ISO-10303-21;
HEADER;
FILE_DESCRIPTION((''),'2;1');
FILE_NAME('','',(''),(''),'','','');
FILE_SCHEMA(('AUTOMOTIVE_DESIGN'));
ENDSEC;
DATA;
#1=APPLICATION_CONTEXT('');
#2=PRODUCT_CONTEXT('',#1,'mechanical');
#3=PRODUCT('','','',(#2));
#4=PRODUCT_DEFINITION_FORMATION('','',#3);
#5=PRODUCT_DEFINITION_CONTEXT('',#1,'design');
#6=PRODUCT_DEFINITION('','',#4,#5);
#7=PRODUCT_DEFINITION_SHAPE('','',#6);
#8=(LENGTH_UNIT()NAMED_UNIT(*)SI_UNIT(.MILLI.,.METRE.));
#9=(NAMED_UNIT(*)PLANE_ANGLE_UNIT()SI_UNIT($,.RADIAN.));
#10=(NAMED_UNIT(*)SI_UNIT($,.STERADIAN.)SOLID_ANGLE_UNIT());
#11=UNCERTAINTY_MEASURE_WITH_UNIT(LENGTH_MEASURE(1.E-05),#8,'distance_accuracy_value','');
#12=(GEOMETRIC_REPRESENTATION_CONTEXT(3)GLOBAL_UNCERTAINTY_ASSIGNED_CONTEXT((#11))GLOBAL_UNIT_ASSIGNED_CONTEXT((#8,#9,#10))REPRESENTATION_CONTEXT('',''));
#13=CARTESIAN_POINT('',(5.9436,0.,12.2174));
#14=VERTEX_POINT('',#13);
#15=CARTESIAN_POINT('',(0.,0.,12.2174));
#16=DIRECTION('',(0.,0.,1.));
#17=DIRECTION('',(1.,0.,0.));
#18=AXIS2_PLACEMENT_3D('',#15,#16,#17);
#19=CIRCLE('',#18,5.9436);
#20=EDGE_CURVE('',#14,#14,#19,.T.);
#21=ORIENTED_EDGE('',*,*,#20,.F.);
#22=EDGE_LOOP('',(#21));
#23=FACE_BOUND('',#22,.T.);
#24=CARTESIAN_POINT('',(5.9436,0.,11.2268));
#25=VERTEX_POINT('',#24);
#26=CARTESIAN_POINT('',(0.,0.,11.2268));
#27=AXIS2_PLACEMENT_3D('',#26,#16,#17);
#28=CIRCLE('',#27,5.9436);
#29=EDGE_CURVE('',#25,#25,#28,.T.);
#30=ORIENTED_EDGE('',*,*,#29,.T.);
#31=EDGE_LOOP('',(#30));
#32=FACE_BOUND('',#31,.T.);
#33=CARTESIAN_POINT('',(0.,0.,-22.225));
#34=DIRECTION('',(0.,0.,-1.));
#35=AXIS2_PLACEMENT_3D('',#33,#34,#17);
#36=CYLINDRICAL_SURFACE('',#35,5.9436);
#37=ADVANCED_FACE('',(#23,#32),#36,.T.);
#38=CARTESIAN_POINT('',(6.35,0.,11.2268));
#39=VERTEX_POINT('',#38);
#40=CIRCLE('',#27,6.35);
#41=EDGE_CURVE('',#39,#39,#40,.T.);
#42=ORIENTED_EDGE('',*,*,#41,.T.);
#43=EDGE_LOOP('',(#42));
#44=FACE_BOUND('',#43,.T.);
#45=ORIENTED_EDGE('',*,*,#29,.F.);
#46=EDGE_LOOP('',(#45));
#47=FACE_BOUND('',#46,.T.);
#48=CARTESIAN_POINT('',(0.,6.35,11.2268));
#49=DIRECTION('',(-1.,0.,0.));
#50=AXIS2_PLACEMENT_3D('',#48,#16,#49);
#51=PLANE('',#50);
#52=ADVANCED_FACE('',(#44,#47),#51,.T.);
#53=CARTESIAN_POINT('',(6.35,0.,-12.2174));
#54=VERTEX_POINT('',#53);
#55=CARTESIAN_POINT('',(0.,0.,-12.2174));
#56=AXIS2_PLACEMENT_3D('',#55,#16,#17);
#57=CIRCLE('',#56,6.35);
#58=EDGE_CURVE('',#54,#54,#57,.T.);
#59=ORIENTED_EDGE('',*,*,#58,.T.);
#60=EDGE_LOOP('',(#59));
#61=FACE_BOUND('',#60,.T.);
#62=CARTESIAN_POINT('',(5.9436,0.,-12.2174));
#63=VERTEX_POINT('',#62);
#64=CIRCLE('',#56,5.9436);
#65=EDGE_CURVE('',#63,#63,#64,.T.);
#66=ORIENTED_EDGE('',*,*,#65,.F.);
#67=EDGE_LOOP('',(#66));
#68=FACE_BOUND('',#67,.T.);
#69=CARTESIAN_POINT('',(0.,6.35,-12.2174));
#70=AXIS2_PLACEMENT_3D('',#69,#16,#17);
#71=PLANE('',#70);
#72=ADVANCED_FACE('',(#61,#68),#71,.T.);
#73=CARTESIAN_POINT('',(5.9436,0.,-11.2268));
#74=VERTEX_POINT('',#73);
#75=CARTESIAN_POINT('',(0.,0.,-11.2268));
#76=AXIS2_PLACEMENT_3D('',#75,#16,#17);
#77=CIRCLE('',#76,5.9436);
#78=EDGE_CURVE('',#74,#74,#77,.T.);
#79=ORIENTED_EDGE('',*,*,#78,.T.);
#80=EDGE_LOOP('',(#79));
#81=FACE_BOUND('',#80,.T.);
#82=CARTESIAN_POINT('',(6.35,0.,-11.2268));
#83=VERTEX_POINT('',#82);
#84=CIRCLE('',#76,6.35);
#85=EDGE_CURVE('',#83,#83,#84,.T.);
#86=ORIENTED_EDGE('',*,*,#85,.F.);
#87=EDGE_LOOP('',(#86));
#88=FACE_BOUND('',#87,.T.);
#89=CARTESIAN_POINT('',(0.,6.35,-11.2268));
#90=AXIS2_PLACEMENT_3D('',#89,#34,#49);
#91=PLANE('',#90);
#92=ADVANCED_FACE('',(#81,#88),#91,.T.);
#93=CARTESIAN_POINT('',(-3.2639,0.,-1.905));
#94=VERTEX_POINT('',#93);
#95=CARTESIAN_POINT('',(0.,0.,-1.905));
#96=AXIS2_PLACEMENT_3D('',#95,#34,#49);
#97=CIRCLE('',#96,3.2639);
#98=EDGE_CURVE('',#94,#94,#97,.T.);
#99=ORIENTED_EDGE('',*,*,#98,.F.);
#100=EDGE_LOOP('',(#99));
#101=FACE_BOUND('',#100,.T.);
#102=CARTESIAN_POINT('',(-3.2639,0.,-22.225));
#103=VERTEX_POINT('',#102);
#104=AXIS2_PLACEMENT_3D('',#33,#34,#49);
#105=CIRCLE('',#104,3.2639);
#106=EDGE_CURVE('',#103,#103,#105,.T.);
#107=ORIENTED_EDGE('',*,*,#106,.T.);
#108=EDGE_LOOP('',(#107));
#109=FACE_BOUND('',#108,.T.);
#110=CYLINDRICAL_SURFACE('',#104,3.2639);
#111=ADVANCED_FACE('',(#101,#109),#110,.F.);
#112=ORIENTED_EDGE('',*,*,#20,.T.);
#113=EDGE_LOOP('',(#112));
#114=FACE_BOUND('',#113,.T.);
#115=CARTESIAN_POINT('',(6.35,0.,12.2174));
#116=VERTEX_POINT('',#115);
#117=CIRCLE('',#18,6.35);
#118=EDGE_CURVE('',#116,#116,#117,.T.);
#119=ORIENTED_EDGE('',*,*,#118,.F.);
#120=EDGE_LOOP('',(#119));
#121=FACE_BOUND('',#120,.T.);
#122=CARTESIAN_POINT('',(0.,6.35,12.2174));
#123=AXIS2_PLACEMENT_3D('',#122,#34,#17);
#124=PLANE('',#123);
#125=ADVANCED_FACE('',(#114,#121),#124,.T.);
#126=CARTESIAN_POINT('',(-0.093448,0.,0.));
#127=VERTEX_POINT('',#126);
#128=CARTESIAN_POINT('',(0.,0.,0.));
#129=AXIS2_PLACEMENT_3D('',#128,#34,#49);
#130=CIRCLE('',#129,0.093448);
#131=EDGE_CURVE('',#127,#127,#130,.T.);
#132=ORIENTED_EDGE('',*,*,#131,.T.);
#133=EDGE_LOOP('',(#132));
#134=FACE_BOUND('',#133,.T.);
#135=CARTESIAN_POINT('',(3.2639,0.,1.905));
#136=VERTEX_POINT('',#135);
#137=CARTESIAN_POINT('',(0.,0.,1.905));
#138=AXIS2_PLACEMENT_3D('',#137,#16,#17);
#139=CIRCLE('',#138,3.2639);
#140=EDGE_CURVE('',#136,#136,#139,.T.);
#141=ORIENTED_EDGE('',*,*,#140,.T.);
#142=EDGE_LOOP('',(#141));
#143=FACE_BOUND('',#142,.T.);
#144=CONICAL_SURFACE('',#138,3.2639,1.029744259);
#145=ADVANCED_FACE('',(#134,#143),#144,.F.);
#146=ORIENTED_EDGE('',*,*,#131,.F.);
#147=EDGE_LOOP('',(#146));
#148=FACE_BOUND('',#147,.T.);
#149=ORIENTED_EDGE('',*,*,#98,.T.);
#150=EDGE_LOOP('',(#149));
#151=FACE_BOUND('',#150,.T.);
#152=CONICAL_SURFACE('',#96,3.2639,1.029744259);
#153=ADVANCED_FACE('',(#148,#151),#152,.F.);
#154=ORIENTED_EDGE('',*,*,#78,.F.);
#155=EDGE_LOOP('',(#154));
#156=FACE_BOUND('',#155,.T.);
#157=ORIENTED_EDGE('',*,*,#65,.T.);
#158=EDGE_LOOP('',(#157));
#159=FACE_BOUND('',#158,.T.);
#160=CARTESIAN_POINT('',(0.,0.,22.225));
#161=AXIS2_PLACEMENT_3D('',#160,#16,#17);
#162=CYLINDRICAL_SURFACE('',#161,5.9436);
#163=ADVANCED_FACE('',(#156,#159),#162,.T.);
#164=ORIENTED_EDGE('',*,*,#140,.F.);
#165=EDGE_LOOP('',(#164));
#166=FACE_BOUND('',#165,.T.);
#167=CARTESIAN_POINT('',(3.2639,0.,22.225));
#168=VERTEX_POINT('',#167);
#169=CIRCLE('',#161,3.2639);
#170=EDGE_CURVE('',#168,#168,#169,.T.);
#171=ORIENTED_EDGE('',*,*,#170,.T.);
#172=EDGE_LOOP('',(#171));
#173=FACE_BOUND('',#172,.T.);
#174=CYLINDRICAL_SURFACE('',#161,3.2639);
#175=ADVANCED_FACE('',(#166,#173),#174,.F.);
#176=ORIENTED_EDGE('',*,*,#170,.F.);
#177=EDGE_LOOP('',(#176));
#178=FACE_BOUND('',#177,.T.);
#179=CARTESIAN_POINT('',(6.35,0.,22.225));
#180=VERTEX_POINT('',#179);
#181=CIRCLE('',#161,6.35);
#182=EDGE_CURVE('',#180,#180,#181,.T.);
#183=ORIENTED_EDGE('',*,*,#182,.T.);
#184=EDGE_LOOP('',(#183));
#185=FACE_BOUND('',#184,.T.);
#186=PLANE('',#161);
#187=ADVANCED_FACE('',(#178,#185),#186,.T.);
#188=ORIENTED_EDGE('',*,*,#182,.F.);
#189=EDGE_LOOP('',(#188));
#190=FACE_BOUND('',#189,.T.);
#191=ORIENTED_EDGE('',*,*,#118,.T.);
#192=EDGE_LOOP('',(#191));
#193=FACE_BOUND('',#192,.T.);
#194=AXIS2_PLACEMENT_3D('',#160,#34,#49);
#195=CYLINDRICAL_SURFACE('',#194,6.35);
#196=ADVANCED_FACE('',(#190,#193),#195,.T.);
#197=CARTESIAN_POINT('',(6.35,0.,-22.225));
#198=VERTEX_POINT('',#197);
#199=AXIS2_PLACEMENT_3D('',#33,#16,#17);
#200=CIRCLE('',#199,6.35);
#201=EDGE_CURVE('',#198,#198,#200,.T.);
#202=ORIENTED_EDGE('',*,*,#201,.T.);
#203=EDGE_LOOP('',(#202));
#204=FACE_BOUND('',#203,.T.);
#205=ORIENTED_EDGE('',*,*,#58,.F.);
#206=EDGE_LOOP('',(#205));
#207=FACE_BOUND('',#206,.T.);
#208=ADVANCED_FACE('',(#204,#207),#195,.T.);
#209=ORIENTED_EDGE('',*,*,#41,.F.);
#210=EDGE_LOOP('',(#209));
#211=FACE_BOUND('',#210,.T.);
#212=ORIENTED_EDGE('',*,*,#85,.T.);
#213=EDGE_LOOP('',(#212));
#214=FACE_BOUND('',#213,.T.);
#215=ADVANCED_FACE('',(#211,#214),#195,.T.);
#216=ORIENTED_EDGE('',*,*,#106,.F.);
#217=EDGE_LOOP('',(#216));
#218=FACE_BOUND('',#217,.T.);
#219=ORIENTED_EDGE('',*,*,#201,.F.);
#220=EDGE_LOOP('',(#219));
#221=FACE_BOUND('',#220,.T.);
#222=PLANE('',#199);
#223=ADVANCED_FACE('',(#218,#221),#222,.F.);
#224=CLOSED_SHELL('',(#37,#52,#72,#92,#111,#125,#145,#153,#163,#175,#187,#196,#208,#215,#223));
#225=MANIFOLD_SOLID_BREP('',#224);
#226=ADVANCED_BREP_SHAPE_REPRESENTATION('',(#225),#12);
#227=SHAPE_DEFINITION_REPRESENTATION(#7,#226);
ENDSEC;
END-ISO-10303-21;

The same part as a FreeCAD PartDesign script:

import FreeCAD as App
import Part
import Sketcher
Q = App.Units.Quantity

doc = App.newDocument("Part")
body = doc.addObject("PartDesign::Body", "Body")

sketch1 = body.newObject("Sketcher::SketchObject", "Sketch")
sketch1.AttachmentSupport = (doc.getObject("XY_Plane"), [""])
sketch1.MapMode = "FlatFace"
sketch1.addGeometry(Part.Circle(App.Vector(0, 0, 0), App.Vector(0, 0, 1), 6), False)
sketch1.addConstraint(Sketcher.Constraint("Coincident", 0, 3, -1, 1))
sketch1.addConstraint(Sketcher.Constraint("Diameter", 0, Q("0.5 in")))
pad1 = body.newObject("PartDesign::Pad", "Pad")
pad1.Profile = sketch1
pad1.Length = Q("1.75 in")
pad1.Midplane = True

sketch2 = body.newObject("Sketcher::SketchObject", "Sketch001")
sketch2.AttachmentSupport = (doc.getObject("XY_Plane"), [""])
sketch2.MapMode = "FlatFace"
sketch2.AttachmentOffset = App.Placement(App.Vector(0, 0, 0.875 * 25.4), App.Rotation())
sketch2.addGeometry(Part.Circle(App.Vector(0, 0, 0), App.Vector(0, 0, 1), 3.3), False)
sketch2.addConstraint(Sketcher.Constraint("Coincident", 0, 3, -1, 1))
sketch2.addConstraint(Sketcher.Constraint("Diameter", 0, Q("0.257 in")))
doc.recompute()
hole = body.newObject("PartDesign::Hole", "Hole")
hole.Profile = sketch2
hole.ThreadType = "None"
hole.Diameter = Q("0.257 in")
hole.DepthType = "Dimension"
hole.Depth = Q("0.8 in")
hole.DrillPoint = "Angled"
hole.DrillPointAngle = 118

sketch3 = body.newObject("Sketcher::SketchObject", "Sketch002")
sketch3.AttachmentSupport = (doc.getObject("XY_Plane"), [""])
sketch3.MapMode = "FlatFace"
sketch3.AttachmentOffset = App.Placement(App.Vector(0, 0, -0.875 * 25.4), App.Rotation())
sketch3.addGeometry(Part.Circle(App.Vector(0, 0, 0), App.Vector(0, 0, 1), 3.3), False)
sketch3.addConstraint(Sketcher.Constraint("Coincident", 0, 3, -1, 1))
sketch3.addConstraint(Sketcher.Constraint("Diameter", 0, Q("0.257 in")))
doc.recompute()
hole2 = body.newObject("PartDesign::Hole", "Hole001")
hole2.Profile = sketch3
hole2.ThreadType = "None"
hole2.Diameter = Q("0.257 in")
hole2.DepthType = "Dimension"
hole2.Depth = Q("0.8 in")
hole2.DrillPoint = "Angled"
hole2.DrillPointAngle = 118
hole2.Reversed = True

sketch4 = body.newObject("Sketcher::SketchObject", "Sketch003")
sketch4.AttachmentSupport = (doc.getObject("YZ_Plane"), [""])
sketch4.MapMode = "FlatFace"
sketch4.addGeometry(Part.LineSegment(App.Vector(6.35, -11.23, 0), App.Vector(5.94, -11.23, 0)), False)
sketch4.addGeometry(Part.LineSegment(App.Vector(5.94, -11.23, 0), App.Vector(5.94, -12.22, 0)), False)
sketch4.addGeometry(Part.LineSegment(App.Vector(5.94, -12.22, 0), App.Vector(6.35, -12.22, 0)), False)
sketch4.addGeometry(Part.LineSegment(App.Vector(6.35, -12.22, 0), App.Vector(6.35, -11.23, 0)), False)
sketch4.addConstraint(Sketcher.Constraint("Coincident", 0, 2, 1, 1))
sketch4.addConstraint(Sketcher.Constraint("Coincident", 1, 2, 2, 1))
sketch4.addConstraint(Sketcher.Constraint("Coincident", 2, 2, 3, 1))
sketch4.addConstraint(Sketcher.Constraint("Coincident", 3, 2, 0, 1))
sketch4.addConstraint(Sketcher.Constraint("Horizontal", 0))
sketch4.addConstraint(Sketcher.Constraint("Vertical", 1))
sketch4.addConstraint(Sketcher.Constraint("Horizontal", 2))
sketch4.addConstraint(Sketcher.Constraint("Vertical", 3))
sketch4.addConstraint(Sketcher.Constraint("DistanceX", 0, 2, 0, 1, Q("0.016 in")))
sketch4.addConstraint(Sketcher.Constraint("DistanceY", 1, 2, 1, 1, Q("0.039 in")))
sketch4.addConstraint(Sketcher.Constraint("DistanceX", -1, 1, 2, 2, Q("0.25 in")))
sketch4.addConstraint(Sketcher.Constraint("DistanceY", 0, 2, -1, 1, Q("0.442 in")))
groove = body.newObject("PartDesign::Groove", "Groove")
groove.Profile = sketch4
groove.ReferenceAxis = (sketch4, ["V_Axis"])
groove.Angle = 360
doc.recompute()

mirrored = body.newObject("PartDesign::Mirrored", "Mirrored")
mirrored.Originals = [groove]
mirrored.MirrorPlane = (doc.getObject("XY_Plane"), [""])
body.Tip = mirrored

doc.recompute()
